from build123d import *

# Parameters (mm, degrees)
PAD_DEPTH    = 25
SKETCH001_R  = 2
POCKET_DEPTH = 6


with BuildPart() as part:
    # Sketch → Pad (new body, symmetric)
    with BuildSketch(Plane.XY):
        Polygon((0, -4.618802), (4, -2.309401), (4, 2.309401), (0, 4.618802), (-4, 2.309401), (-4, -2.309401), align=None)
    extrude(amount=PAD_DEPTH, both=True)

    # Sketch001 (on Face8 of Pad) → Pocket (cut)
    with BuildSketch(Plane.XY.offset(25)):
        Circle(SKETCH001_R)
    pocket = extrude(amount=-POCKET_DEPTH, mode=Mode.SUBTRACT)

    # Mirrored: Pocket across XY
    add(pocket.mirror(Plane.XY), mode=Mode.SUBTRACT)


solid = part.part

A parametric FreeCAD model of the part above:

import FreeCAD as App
import Part
import Sketcher
from FreeCAD import Vector
Q = App.Units.Quantity

doc = App.newDocument("Part")
body = doc.addObject("PartDesign::Body", "Body")

sketch1 = body.newObject("Sketcher::SketchObject", "Sketch")
sketch1.AttachmentSupport = (doc.getObject("XY_Plane"), [""])
sketch1.MapMode = "FlatFace"
sketch1.addGeometry([
    Part.LineSegment(Vector(0, -4.618802, 0), Vector(4, -2.309401, 0)),
    Part.LineSegment(Vector(4, -2.309401, 0), Vector(4, 2.309401, 0)),
    Part.LineSegment(Vector(4, 2.309401, 0), Vector(0, 4.618802, 0)),
    Part.LineSegment(Vector(0, 4.618802, 0), Vector(-4, 2.309401, 0)),
    Part.LineSegment(Vector(-4, 2.309401, 0), Vector(-4, -2.309401, 0)),
    Part.LineSegment(Vector(-4, -2.309401, 0), Vector(0, -4.618802, 0)),
], False)
sketch1.addConstraint([
    Sketcher.Constraint("Coincident", 0, 2, 1, 1),
    Sketcher.Constraint("Coincident", 1, 2, 2, 1),
    Sketcher.Constraint("Coincident", 2, 2, 3, 1),
    Sketcher.Constraint("Coincident", 3, 2, 4, 1),
    Sketcher.Constraint("Coincident", 4, 2, 5, 1),
    Sketcher.Constraint("Coincident", 5, 2, 0, 1),
    Sketcher.Constraint("Vertical", 1),
    Sketcher.Constraint("Vertical", 4),
    Sketcher.Constraint("Symmetric", 0, 2, 3, 2, -1, 1),
    Sketcher.Constraint("Symmetric", 2, 2, 5, 2, -1, 1),
    Sketcher.Constraint("PointOnObject", 2, 2, -2),
    Sketcher.Constraint("Parallel", 2, 5),
    Sketcher.Constraint("Horizontal", 1, 2, 3, 2),
    Sketcher.Constraint("Angle", 0, Q("29.999999 deg")),
    Sketcher.Constraint("DistanceX", -1, 1, 0, 2, 4.0),
    Sketcher.Constraint("DistanceY", 1, 1, 1, 2, 4.618802),
])
pad1 = body.newObject("PartDesign::Pad", "Pad")
pad1.Profile = sketch1
pad1.Length = 50
pad1.Midplane = True

sketch2 = body.newObject("Sketcher::SketchObject", "Sketch001")
sketch2.AttachmentSupport = (doc.getObject("XY_Plane"), [""])
sketch2.MapMode = "FlatFace"
sketch2.AttachmentOffset = App.Placement(Vector(0, 0, 25), App.Rotation())
sketch2.addGeometry(Part.Circle(Vector(0, 0, 0), Vector(0, 0, 1), 2), False)
sketch2.addConstraint([
    Sketcher.Constraint("Coincident", 0, 3, -1, 1),
    Sketcher.Constraint("Diameter", 0, 4.0),
])
pocket1 = body.newObject("PartDesign::Pocket", "Pocket")
pocket1.Profile = sketch2
pocket1.Length = 6
doc.recompute()

mirrored = body.newObject("PartDesign::Mirrored", "Mirrored")
mirrored.Originals = [pocket1]
mirrored.MirrorPlane = (doc.getObject("XY_Plane"), [""])
body.Tip = mirrored

doc.recompute()
